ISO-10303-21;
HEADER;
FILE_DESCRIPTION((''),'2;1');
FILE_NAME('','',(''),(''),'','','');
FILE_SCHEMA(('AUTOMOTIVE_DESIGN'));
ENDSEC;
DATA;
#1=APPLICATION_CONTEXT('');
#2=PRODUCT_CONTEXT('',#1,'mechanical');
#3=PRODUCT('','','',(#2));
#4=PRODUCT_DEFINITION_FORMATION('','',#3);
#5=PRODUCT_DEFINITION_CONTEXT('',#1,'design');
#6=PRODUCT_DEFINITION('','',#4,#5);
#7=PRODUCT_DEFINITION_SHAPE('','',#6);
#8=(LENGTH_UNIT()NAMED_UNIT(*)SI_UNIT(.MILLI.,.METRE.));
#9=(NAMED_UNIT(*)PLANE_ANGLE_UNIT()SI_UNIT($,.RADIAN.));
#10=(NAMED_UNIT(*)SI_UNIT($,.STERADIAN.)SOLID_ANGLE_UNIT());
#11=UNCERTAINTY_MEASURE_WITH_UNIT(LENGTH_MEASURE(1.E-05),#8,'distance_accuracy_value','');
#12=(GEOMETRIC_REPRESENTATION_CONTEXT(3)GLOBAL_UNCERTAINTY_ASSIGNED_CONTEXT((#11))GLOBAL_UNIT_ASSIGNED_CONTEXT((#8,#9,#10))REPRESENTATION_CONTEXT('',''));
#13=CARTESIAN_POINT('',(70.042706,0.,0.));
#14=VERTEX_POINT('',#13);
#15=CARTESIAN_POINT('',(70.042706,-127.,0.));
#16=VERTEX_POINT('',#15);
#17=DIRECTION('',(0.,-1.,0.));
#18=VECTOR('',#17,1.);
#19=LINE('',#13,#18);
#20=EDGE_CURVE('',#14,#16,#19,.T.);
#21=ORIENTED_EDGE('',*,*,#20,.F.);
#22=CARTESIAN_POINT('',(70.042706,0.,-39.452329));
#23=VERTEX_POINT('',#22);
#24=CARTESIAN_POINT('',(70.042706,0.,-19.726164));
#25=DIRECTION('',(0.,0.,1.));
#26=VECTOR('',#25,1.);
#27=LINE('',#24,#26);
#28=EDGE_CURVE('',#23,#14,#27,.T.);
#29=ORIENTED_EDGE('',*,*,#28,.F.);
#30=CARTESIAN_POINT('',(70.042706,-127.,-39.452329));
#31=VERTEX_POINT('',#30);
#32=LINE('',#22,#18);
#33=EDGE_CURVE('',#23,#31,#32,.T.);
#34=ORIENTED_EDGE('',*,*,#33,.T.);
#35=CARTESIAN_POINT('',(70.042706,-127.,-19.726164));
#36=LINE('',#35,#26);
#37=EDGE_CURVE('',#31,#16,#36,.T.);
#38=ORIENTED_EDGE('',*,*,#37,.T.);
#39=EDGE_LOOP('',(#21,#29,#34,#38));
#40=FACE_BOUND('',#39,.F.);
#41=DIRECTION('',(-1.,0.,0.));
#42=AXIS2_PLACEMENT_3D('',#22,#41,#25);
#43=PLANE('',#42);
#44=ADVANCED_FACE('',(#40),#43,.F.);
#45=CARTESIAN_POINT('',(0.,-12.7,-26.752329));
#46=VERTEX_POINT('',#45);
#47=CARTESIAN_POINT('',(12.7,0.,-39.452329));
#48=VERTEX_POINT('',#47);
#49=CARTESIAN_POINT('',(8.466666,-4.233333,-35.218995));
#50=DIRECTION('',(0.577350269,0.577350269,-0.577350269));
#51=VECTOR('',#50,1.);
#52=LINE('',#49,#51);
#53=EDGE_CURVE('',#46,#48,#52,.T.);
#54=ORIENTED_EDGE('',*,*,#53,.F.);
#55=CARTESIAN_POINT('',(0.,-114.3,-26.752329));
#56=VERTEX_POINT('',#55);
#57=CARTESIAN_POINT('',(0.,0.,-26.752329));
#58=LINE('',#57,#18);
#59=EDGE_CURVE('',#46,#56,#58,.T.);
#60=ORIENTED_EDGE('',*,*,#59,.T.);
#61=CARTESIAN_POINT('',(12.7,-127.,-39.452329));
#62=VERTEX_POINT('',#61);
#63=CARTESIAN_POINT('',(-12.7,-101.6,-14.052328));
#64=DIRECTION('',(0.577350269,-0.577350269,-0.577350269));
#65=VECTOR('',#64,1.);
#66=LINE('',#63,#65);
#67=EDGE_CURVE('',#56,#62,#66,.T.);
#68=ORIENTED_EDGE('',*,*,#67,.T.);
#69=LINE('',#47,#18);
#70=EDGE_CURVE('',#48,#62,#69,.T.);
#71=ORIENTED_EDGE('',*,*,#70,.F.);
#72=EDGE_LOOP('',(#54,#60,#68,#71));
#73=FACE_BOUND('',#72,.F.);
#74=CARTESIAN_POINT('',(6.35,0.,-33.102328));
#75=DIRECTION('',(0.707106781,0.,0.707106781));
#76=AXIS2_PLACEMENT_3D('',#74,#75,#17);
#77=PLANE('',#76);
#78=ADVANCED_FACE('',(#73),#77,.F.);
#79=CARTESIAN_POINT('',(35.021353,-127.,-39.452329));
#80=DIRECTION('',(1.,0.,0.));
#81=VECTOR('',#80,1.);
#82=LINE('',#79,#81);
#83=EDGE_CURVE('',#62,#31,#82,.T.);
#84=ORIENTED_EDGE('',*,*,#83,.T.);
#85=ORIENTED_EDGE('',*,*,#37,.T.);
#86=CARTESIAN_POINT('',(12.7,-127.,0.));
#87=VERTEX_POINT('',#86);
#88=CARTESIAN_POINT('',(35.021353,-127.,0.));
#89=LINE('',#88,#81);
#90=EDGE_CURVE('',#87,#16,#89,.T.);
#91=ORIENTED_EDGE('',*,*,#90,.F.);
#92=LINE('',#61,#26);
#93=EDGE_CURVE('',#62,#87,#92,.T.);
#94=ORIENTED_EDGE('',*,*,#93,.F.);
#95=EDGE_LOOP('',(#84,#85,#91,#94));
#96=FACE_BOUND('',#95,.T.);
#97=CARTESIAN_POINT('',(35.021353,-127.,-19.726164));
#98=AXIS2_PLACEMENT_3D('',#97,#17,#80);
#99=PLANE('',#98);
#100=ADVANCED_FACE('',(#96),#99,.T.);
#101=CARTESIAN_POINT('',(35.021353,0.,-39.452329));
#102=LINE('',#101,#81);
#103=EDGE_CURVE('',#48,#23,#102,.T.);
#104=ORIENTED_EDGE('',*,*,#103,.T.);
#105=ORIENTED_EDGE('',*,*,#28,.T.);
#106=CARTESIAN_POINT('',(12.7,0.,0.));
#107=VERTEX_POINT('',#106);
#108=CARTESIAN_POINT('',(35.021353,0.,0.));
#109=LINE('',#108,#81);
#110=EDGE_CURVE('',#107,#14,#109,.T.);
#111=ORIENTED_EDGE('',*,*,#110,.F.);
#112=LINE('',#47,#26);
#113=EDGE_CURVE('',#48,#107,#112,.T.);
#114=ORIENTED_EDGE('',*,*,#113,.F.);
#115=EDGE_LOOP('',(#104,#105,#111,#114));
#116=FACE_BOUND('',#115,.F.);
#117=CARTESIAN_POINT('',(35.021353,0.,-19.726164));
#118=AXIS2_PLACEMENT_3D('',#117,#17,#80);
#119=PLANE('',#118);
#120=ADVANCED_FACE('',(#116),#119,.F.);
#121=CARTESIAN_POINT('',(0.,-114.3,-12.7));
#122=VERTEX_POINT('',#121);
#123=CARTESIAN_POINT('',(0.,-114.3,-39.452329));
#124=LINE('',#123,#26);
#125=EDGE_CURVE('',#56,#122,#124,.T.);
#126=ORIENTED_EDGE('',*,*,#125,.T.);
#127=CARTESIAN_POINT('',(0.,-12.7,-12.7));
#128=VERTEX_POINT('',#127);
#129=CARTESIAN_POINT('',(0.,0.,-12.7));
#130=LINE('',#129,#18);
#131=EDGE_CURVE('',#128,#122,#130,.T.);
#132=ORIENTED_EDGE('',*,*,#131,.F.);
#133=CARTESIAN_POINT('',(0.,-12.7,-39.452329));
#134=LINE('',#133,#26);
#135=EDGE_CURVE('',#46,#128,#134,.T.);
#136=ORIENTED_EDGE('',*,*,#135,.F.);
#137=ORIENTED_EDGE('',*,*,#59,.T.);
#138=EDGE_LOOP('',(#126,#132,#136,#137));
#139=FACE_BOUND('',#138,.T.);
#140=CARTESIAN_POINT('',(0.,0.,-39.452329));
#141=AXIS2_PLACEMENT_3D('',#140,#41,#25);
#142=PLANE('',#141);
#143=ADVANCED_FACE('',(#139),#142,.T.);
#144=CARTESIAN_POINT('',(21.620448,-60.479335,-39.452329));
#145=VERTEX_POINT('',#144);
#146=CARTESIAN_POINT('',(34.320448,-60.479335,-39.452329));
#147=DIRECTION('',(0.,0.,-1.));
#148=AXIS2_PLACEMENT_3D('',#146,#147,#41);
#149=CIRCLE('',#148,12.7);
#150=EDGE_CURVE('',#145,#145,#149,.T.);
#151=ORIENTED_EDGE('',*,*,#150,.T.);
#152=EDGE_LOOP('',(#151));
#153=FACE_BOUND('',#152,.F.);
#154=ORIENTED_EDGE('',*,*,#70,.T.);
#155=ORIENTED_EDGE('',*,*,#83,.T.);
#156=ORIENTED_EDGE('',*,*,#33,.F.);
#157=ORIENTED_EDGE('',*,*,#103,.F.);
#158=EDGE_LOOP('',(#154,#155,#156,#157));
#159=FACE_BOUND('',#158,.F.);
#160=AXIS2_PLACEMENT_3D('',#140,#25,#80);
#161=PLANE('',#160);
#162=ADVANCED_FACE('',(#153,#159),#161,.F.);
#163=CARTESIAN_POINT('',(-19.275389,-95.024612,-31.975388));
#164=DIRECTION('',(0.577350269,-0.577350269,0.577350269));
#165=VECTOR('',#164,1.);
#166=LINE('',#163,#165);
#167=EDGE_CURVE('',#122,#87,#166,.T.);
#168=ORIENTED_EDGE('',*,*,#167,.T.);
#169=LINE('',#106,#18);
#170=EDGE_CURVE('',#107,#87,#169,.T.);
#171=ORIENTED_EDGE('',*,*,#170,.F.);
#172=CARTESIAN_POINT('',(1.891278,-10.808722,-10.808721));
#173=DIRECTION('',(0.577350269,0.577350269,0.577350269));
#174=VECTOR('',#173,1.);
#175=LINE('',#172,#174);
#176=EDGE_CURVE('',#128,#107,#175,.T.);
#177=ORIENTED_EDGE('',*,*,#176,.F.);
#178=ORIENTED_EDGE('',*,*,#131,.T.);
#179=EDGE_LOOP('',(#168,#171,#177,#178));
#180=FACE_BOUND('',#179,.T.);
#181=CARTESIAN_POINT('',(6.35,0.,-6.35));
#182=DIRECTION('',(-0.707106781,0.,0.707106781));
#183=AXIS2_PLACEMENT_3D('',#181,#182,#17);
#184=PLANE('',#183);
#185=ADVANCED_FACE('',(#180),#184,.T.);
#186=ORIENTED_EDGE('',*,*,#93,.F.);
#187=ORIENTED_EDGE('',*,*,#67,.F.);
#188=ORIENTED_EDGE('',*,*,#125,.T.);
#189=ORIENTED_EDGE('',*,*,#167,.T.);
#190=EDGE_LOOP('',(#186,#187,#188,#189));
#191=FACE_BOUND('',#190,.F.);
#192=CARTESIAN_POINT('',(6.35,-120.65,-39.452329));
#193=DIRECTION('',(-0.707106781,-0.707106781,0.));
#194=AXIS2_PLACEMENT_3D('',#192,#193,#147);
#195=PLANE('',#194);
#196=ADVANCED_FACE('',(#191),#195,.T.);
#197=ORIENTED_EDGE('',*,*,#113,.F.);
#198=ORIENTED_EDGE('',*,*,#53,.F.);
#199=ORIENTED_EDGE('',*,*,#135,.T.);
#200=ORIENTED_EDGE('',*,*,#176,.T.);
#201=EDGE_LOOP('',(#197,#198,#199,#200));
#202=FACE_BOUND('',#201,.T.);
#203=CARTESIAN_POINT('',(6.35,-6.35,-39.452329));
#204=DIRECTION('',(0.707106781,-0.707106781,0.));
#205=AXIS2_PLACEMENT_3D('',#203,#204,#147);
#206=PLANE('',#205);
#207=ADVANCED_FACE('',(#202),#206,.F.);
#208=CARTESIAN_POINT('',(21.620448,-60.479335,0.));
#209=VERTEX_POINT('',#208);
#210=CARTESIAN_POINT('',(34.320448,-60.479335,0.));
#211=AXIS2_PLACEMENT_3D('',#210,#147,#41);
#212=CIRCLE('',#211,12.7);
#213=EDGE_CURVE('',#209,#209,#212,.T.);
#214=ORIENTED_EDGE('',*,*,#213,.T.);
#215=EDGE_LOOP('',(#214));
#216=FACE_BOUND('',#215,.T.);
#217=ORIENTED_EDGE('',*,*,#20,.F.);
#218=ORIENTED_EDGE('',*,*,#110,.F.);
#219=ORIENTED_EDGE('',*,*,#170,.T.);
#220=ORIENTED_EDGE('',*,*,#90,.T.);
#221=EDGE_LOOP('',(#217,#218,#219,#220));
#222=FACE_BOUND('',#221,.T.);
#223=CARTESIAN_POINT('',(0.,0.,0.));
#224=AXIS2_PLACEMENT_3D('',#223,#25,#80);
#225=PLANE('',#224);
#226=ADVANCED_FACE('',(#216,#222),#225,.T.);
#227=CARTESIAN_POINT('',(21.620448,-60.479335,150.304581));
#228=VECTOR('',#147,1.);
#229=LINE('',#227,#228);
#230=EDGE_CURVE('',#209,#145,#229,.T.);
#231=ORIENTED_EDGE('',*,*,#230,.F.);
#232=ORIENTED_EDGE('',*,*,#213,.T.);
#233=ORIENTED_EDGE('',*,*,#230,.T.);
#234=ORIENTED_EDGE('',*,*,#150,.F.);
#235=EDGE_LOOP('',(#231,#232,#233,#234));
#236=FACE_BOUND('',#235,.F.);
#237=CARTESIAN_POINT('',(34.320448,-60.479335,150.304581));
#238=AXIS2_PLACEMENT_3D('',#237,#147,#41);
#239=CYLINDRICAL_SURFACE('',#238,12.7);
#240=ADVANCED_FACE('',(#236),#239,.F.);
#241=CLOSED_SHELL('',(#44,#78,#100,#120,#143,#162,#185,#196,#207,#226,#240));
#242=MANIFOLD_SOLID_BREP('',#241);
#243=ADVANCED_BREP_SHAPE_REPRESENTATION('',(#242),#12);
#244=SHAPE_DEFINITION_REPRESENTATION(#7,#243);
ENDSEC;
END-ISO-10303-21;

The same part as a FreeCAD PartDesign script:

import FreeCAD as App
import Part
import Sketcher
Q = App.Units.Quantity


def edges_at(feature, points):
    """Names of the edges that pass closest to the given points."""
    edges = feature.Shape.Edges
    near = lambda p: min(range(len(edges)), key=lambda i: edges[i].distToShape(Part.Vertex(*p))[0])
    return sorted({f"Edge{near(p) + 1}" for p in points})

doc = App.newDocument("Part")
body = doc.addObject("PartDesign::Body", "Body")

# Sketch on XZ plane
sketch1 = body.newObject("Sketcher::SketchObject", "Sketch")
sketch1.AttachmentSupport = (doc.getObject("XZ_Plane"), [""])
sketch1.MapMode = "FlatFace"
sketch1.addGeometry([
    Part.LineSegment(App.Vector(0, 0, 0), App.Vector(0, -39, 0)),
    Part.LineSegment(App.Vector(0, -39, 0), App.Vector(70, -39, 0)),
    Part.LineSegment(App.Vector(70, -39, 0), App.Vector(70, 0, 0)),
    Part.LineSegment(App.Vector(70, 0, 0), App.Vector(0, 0, 0)),
], False)
sketch1.addConstraint([
    Sketcher.Constraint("Coincident", 0, 2, 1, 1),
    Sketcher.Constraint("Coincident", 1, 2, 2, 1),
    Sketcher.Constraint("Coincident", 2, 2, 3, 1),
    Sketcher.Constraint("Coincident", 3, 2, 0, 1),
    Sketcher.Constraint("Vertical", 0),
    Sketcher.Constraint("Horizontal", 1),
    Sketcher.Constraint("Vertical", 2),
    Sketcher.Constraint("Horizontal", 3),
    Sketcher.Constraint("Coincident", 3, 2, -1, 1),
    Sketcher.Constraint("DistanceY", 0, 2, 0, 1, Q("39.452329 mm")),
    Sketcher.Constraint("DistanceX", 1, 1, 1, 2, Q("70.042707 mm")),
])
pad1 = body.newObject("PartDesign::Pad", "Pad")
pad1.Profile = sketch1
pad1.Length = Q("5 in")

# Sketch on XY plane
sketch2 = body.newObject("Sketcher::SketchObject", "Sketch001")
sketch2.AttachmentSupport = (doc.getObject("XY_Plane"), [""])
sketch2.MapMode = "FlatFace"
sketch2.addGeometry(Part.Circle(App.Vector(34, -60, 0), App.Vector(0, 0, 1), 13), False)
sketch2.addConstraint([
    Sketcher.Constraint("Diameter", 0, Q("1 in")),
    Sketcher.Constraint("DistanceX", -1, 1, 0, 3, Q("34.320448 mm")),
    Sketcher.Constraint("DistanceY", 0, 3, -1, 1, Q("60.479335 mm")),
])
doc.recompute()
hole = body.newObject("PartDesign::Hole", "Hole")
hole.Profile = sketch2
hole.ThreadType = "None"
hole.Diameter = Q("1 in")
hole.DepthType = "ThroughAll"
doc.recompute()

chamfer = body.newObject("PartDesign::Chamfer", "Chamfer")
chamfer.Base = (hole, edges_at(hole, [
    (0, -63.5, 0),
    (0, -63.5, -39.452),
    (0, 0, -19.726),
    (0, -127, -19.726),
]))
chamfer.Size = Q("0.5 in")

doc.recompute()
